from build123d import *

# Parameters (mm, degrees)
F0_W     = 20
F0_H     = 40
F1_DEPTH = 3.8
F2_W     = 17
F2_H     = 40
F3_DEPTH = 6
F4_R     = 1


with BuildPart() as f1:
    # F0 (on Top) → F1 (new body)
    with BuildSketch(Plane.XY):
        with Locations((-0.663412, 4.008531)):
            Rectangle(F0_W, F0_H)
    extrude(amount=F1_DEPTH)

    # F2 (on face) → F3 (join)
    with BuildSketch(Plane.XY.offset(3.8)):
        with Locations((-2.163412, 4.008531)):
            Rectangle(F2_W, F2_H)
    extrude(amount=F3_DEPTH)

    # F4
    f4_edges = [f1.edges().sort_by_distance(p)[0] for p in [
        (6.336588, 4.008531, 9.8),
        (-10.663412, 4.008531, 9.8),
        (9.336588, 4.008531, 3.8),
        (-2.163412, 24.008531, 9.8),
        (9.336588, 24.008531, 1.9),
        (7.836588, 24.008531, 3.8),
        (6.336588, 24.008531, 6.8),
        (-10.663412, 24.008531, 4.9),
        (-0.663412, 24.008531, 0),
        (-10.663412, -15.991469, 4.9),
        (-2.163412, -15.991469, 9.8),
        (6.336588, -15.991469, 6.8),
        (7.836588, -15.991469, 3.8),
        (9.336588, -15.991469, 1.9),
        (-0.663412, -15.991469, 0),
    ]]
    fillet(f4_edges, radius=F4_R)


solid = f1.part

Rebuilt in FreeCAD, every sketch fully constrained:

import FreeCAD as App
import Part
import Sketcher

V = App.Vector


def edges_at(feature, points):
    """Names of the edges that pass closest to the given points."""
    edges = feature.Shape.Edges
    near = lambda p: min(range(len(edges)), key=lambda i: edges[i].distToShape(Part.Vertex(*p))[0])
    return sorted({f"Edge{near(p) + 1}" for p in points})

doc = App.newDocument("Part")
body = doc.addObject("PartDesign::Body", "Body")

# Sketch on XY plane
sketch1 = body.newObject("Sketcher::SketchObject", "Sketch")
sketch1.AttachmentSupport = (doc.getObject("XY_Plane"), [""])
sketch1.MapMode = "FlatFace"
sketch1.addGeometry(Part.LineSegment(V(-11, 24, 0), V(-11, -16, 0)), False)
sketch1.addGeometry(Part.LineSegment(V(-11, -16, 0), V(9, -16, 0)), False)
sketch1.addGeometry(Part.LineSegment(V(9, -16, 0), V(9, 24, 0)), False)
sketch1.addGeometry(Part.LineSegment(V(9, 24, 0), V(-11, 24, 0)), False)
sketch1.addConstraint(Sketcher.Constraint("Coincident", 0, 2, 1, 1))
sketch1.addConstraint(Sketcher.Constraint("Coincident", 1, 2, 2, 1))
sketch1.addConstraint(Sketcher.Constraint("Coincident", 2, 2, 3, 1))
sketch1.addConstraint(Sketcher.Constraint("Coincident", 3, 2, 0, 1))
sketch1.addConstraint(Sketcher.Constraint("Vertical", 0))
sketch1.addConstraint(Sketcher.Constraint("Horizontal", 1))
sketch1.addConstraint(Sketcher.Constraint("Vertical", 2))
sketch1.addConstraint(Sketcher.Constraint("Horizontal", 3))
sketch1.addConstraint(Sketcher.Constraint("DistanceX", 1, 1, 1, 2, 20.0))
sketch1.addConstraint(Sketcher.Constraint("DistanceY", 0, 2, 0, 1, 40.0))
sketch1.addConstraint(Sketcher.Constraint("DistanceX", 0, 2, -1, 1, 10.663412))
sketch1.addConstraint(Sketcher.Constraint("DistanceY", 0, 2, -1, 1, 15.991469))
pad1 = body.newObject("PartDesign::Pad", "Pad")
pad1.Profile = sketch1
pad1.Length = 3.8

# Sketch on XY plane
sketch2 = body.newObject("Sketcher::SketchObject", "Sketch001")
sketch2.AttachmentSupport = (doc.getObject("XY_Plane"), [""])
sketch2.MapMode = "FlatFace"
sketch2.AttachmentOffset = App.Placement(V(0, 0, 3.8), App.Rotation())
sketch2.addGeometry(Part.LineSegment(V(-11, 24, 0), V(-11, -16, 0)), False)
sketch2.addGeometry(Part.LineSegment(V(-11, -16, 0), V(6, -16, 0)), False)
sketch2.addGeometry(Part.LineSegment(V(6, -16, 0), V(6, 24, 0)), False)
sketch2.addGeometry(Part.LineSegment(V(6, 24, 0), V(-11, 24, 0)), False)
sketch2.addConstraint(Sketcher.Constraint("Coincident", 0, 2, 1, 1))
sketch2.addConstraint(Sketcher.Constraint("Coincident", 1, 2, 2, 1))
sketch2.addConstraint(Sketcher.Constraint("Coincident", 2, 2, 3, 1))
sketch2.addConstraint(Sketcher.Constraint("Coincident", 3, 2, 0, 1))
sketch2.addConstraint(Sketcher.Constraint("Vertical", 0))
sketch2.addConstraint(Sketcher.Constraint("Horizontal", 1))
sketch2.addConstraint(Sketcher.Constraint("Vertical", 2))
sketch2.addConstraint(Sketcher.Constraint("Horizontal", 3))
sketch2.addConstraint(Sketcher.Constraint("DistanceX", 1, 1, 1, 2, 17.0))
sketch2.addConstraint(Sketcher.Constraint("DistanceY", 0, 2, 0, 1, 40.0))
sketch2.addConstraint(Sketcher.Constraint("DistanceX", 0, 2, -1, 1, 10.663412))
sketch2.addConstraint(Sketcher.Constraint("DistanceY", 0, 2, -1, 1, 15.991469))
pad2 = body.newObject("PartDesign::Pad", "Pad001")
pad2.Profile = sketch2
pad2.Length = 6
doc.recompute()

fillet = body.newObject("PartDesign::Fillet", "Fillet")
fillet.Base = (pad2, edges_at(pad2, [
    (6.337, 4.009, 9.8),
    (-10.663, 4.009, 9.8),
    (9.337, 4.009, 3.8),
    (-2.163, 24.009, 9.8),
    (9.337, 24.009, 1.9),
    (7.837, 24.009, 3.8),
    (6.337, 24.009, 6.8),
    (-10.663, 24.009, 4.9),
    (-0.663, 24.009, 0),
    (-10.663, -15.991, 4.9),
    (-2.163, -15.991, 9.8),
    (6.337, -15.991, 6.8),
    (7.837, -15.991, 3.8),
    (9.337, -15.991, 1.9),
    (-0.663, -15.991, 0),
]))
fillet.Radius = 1

doc.recompute()
